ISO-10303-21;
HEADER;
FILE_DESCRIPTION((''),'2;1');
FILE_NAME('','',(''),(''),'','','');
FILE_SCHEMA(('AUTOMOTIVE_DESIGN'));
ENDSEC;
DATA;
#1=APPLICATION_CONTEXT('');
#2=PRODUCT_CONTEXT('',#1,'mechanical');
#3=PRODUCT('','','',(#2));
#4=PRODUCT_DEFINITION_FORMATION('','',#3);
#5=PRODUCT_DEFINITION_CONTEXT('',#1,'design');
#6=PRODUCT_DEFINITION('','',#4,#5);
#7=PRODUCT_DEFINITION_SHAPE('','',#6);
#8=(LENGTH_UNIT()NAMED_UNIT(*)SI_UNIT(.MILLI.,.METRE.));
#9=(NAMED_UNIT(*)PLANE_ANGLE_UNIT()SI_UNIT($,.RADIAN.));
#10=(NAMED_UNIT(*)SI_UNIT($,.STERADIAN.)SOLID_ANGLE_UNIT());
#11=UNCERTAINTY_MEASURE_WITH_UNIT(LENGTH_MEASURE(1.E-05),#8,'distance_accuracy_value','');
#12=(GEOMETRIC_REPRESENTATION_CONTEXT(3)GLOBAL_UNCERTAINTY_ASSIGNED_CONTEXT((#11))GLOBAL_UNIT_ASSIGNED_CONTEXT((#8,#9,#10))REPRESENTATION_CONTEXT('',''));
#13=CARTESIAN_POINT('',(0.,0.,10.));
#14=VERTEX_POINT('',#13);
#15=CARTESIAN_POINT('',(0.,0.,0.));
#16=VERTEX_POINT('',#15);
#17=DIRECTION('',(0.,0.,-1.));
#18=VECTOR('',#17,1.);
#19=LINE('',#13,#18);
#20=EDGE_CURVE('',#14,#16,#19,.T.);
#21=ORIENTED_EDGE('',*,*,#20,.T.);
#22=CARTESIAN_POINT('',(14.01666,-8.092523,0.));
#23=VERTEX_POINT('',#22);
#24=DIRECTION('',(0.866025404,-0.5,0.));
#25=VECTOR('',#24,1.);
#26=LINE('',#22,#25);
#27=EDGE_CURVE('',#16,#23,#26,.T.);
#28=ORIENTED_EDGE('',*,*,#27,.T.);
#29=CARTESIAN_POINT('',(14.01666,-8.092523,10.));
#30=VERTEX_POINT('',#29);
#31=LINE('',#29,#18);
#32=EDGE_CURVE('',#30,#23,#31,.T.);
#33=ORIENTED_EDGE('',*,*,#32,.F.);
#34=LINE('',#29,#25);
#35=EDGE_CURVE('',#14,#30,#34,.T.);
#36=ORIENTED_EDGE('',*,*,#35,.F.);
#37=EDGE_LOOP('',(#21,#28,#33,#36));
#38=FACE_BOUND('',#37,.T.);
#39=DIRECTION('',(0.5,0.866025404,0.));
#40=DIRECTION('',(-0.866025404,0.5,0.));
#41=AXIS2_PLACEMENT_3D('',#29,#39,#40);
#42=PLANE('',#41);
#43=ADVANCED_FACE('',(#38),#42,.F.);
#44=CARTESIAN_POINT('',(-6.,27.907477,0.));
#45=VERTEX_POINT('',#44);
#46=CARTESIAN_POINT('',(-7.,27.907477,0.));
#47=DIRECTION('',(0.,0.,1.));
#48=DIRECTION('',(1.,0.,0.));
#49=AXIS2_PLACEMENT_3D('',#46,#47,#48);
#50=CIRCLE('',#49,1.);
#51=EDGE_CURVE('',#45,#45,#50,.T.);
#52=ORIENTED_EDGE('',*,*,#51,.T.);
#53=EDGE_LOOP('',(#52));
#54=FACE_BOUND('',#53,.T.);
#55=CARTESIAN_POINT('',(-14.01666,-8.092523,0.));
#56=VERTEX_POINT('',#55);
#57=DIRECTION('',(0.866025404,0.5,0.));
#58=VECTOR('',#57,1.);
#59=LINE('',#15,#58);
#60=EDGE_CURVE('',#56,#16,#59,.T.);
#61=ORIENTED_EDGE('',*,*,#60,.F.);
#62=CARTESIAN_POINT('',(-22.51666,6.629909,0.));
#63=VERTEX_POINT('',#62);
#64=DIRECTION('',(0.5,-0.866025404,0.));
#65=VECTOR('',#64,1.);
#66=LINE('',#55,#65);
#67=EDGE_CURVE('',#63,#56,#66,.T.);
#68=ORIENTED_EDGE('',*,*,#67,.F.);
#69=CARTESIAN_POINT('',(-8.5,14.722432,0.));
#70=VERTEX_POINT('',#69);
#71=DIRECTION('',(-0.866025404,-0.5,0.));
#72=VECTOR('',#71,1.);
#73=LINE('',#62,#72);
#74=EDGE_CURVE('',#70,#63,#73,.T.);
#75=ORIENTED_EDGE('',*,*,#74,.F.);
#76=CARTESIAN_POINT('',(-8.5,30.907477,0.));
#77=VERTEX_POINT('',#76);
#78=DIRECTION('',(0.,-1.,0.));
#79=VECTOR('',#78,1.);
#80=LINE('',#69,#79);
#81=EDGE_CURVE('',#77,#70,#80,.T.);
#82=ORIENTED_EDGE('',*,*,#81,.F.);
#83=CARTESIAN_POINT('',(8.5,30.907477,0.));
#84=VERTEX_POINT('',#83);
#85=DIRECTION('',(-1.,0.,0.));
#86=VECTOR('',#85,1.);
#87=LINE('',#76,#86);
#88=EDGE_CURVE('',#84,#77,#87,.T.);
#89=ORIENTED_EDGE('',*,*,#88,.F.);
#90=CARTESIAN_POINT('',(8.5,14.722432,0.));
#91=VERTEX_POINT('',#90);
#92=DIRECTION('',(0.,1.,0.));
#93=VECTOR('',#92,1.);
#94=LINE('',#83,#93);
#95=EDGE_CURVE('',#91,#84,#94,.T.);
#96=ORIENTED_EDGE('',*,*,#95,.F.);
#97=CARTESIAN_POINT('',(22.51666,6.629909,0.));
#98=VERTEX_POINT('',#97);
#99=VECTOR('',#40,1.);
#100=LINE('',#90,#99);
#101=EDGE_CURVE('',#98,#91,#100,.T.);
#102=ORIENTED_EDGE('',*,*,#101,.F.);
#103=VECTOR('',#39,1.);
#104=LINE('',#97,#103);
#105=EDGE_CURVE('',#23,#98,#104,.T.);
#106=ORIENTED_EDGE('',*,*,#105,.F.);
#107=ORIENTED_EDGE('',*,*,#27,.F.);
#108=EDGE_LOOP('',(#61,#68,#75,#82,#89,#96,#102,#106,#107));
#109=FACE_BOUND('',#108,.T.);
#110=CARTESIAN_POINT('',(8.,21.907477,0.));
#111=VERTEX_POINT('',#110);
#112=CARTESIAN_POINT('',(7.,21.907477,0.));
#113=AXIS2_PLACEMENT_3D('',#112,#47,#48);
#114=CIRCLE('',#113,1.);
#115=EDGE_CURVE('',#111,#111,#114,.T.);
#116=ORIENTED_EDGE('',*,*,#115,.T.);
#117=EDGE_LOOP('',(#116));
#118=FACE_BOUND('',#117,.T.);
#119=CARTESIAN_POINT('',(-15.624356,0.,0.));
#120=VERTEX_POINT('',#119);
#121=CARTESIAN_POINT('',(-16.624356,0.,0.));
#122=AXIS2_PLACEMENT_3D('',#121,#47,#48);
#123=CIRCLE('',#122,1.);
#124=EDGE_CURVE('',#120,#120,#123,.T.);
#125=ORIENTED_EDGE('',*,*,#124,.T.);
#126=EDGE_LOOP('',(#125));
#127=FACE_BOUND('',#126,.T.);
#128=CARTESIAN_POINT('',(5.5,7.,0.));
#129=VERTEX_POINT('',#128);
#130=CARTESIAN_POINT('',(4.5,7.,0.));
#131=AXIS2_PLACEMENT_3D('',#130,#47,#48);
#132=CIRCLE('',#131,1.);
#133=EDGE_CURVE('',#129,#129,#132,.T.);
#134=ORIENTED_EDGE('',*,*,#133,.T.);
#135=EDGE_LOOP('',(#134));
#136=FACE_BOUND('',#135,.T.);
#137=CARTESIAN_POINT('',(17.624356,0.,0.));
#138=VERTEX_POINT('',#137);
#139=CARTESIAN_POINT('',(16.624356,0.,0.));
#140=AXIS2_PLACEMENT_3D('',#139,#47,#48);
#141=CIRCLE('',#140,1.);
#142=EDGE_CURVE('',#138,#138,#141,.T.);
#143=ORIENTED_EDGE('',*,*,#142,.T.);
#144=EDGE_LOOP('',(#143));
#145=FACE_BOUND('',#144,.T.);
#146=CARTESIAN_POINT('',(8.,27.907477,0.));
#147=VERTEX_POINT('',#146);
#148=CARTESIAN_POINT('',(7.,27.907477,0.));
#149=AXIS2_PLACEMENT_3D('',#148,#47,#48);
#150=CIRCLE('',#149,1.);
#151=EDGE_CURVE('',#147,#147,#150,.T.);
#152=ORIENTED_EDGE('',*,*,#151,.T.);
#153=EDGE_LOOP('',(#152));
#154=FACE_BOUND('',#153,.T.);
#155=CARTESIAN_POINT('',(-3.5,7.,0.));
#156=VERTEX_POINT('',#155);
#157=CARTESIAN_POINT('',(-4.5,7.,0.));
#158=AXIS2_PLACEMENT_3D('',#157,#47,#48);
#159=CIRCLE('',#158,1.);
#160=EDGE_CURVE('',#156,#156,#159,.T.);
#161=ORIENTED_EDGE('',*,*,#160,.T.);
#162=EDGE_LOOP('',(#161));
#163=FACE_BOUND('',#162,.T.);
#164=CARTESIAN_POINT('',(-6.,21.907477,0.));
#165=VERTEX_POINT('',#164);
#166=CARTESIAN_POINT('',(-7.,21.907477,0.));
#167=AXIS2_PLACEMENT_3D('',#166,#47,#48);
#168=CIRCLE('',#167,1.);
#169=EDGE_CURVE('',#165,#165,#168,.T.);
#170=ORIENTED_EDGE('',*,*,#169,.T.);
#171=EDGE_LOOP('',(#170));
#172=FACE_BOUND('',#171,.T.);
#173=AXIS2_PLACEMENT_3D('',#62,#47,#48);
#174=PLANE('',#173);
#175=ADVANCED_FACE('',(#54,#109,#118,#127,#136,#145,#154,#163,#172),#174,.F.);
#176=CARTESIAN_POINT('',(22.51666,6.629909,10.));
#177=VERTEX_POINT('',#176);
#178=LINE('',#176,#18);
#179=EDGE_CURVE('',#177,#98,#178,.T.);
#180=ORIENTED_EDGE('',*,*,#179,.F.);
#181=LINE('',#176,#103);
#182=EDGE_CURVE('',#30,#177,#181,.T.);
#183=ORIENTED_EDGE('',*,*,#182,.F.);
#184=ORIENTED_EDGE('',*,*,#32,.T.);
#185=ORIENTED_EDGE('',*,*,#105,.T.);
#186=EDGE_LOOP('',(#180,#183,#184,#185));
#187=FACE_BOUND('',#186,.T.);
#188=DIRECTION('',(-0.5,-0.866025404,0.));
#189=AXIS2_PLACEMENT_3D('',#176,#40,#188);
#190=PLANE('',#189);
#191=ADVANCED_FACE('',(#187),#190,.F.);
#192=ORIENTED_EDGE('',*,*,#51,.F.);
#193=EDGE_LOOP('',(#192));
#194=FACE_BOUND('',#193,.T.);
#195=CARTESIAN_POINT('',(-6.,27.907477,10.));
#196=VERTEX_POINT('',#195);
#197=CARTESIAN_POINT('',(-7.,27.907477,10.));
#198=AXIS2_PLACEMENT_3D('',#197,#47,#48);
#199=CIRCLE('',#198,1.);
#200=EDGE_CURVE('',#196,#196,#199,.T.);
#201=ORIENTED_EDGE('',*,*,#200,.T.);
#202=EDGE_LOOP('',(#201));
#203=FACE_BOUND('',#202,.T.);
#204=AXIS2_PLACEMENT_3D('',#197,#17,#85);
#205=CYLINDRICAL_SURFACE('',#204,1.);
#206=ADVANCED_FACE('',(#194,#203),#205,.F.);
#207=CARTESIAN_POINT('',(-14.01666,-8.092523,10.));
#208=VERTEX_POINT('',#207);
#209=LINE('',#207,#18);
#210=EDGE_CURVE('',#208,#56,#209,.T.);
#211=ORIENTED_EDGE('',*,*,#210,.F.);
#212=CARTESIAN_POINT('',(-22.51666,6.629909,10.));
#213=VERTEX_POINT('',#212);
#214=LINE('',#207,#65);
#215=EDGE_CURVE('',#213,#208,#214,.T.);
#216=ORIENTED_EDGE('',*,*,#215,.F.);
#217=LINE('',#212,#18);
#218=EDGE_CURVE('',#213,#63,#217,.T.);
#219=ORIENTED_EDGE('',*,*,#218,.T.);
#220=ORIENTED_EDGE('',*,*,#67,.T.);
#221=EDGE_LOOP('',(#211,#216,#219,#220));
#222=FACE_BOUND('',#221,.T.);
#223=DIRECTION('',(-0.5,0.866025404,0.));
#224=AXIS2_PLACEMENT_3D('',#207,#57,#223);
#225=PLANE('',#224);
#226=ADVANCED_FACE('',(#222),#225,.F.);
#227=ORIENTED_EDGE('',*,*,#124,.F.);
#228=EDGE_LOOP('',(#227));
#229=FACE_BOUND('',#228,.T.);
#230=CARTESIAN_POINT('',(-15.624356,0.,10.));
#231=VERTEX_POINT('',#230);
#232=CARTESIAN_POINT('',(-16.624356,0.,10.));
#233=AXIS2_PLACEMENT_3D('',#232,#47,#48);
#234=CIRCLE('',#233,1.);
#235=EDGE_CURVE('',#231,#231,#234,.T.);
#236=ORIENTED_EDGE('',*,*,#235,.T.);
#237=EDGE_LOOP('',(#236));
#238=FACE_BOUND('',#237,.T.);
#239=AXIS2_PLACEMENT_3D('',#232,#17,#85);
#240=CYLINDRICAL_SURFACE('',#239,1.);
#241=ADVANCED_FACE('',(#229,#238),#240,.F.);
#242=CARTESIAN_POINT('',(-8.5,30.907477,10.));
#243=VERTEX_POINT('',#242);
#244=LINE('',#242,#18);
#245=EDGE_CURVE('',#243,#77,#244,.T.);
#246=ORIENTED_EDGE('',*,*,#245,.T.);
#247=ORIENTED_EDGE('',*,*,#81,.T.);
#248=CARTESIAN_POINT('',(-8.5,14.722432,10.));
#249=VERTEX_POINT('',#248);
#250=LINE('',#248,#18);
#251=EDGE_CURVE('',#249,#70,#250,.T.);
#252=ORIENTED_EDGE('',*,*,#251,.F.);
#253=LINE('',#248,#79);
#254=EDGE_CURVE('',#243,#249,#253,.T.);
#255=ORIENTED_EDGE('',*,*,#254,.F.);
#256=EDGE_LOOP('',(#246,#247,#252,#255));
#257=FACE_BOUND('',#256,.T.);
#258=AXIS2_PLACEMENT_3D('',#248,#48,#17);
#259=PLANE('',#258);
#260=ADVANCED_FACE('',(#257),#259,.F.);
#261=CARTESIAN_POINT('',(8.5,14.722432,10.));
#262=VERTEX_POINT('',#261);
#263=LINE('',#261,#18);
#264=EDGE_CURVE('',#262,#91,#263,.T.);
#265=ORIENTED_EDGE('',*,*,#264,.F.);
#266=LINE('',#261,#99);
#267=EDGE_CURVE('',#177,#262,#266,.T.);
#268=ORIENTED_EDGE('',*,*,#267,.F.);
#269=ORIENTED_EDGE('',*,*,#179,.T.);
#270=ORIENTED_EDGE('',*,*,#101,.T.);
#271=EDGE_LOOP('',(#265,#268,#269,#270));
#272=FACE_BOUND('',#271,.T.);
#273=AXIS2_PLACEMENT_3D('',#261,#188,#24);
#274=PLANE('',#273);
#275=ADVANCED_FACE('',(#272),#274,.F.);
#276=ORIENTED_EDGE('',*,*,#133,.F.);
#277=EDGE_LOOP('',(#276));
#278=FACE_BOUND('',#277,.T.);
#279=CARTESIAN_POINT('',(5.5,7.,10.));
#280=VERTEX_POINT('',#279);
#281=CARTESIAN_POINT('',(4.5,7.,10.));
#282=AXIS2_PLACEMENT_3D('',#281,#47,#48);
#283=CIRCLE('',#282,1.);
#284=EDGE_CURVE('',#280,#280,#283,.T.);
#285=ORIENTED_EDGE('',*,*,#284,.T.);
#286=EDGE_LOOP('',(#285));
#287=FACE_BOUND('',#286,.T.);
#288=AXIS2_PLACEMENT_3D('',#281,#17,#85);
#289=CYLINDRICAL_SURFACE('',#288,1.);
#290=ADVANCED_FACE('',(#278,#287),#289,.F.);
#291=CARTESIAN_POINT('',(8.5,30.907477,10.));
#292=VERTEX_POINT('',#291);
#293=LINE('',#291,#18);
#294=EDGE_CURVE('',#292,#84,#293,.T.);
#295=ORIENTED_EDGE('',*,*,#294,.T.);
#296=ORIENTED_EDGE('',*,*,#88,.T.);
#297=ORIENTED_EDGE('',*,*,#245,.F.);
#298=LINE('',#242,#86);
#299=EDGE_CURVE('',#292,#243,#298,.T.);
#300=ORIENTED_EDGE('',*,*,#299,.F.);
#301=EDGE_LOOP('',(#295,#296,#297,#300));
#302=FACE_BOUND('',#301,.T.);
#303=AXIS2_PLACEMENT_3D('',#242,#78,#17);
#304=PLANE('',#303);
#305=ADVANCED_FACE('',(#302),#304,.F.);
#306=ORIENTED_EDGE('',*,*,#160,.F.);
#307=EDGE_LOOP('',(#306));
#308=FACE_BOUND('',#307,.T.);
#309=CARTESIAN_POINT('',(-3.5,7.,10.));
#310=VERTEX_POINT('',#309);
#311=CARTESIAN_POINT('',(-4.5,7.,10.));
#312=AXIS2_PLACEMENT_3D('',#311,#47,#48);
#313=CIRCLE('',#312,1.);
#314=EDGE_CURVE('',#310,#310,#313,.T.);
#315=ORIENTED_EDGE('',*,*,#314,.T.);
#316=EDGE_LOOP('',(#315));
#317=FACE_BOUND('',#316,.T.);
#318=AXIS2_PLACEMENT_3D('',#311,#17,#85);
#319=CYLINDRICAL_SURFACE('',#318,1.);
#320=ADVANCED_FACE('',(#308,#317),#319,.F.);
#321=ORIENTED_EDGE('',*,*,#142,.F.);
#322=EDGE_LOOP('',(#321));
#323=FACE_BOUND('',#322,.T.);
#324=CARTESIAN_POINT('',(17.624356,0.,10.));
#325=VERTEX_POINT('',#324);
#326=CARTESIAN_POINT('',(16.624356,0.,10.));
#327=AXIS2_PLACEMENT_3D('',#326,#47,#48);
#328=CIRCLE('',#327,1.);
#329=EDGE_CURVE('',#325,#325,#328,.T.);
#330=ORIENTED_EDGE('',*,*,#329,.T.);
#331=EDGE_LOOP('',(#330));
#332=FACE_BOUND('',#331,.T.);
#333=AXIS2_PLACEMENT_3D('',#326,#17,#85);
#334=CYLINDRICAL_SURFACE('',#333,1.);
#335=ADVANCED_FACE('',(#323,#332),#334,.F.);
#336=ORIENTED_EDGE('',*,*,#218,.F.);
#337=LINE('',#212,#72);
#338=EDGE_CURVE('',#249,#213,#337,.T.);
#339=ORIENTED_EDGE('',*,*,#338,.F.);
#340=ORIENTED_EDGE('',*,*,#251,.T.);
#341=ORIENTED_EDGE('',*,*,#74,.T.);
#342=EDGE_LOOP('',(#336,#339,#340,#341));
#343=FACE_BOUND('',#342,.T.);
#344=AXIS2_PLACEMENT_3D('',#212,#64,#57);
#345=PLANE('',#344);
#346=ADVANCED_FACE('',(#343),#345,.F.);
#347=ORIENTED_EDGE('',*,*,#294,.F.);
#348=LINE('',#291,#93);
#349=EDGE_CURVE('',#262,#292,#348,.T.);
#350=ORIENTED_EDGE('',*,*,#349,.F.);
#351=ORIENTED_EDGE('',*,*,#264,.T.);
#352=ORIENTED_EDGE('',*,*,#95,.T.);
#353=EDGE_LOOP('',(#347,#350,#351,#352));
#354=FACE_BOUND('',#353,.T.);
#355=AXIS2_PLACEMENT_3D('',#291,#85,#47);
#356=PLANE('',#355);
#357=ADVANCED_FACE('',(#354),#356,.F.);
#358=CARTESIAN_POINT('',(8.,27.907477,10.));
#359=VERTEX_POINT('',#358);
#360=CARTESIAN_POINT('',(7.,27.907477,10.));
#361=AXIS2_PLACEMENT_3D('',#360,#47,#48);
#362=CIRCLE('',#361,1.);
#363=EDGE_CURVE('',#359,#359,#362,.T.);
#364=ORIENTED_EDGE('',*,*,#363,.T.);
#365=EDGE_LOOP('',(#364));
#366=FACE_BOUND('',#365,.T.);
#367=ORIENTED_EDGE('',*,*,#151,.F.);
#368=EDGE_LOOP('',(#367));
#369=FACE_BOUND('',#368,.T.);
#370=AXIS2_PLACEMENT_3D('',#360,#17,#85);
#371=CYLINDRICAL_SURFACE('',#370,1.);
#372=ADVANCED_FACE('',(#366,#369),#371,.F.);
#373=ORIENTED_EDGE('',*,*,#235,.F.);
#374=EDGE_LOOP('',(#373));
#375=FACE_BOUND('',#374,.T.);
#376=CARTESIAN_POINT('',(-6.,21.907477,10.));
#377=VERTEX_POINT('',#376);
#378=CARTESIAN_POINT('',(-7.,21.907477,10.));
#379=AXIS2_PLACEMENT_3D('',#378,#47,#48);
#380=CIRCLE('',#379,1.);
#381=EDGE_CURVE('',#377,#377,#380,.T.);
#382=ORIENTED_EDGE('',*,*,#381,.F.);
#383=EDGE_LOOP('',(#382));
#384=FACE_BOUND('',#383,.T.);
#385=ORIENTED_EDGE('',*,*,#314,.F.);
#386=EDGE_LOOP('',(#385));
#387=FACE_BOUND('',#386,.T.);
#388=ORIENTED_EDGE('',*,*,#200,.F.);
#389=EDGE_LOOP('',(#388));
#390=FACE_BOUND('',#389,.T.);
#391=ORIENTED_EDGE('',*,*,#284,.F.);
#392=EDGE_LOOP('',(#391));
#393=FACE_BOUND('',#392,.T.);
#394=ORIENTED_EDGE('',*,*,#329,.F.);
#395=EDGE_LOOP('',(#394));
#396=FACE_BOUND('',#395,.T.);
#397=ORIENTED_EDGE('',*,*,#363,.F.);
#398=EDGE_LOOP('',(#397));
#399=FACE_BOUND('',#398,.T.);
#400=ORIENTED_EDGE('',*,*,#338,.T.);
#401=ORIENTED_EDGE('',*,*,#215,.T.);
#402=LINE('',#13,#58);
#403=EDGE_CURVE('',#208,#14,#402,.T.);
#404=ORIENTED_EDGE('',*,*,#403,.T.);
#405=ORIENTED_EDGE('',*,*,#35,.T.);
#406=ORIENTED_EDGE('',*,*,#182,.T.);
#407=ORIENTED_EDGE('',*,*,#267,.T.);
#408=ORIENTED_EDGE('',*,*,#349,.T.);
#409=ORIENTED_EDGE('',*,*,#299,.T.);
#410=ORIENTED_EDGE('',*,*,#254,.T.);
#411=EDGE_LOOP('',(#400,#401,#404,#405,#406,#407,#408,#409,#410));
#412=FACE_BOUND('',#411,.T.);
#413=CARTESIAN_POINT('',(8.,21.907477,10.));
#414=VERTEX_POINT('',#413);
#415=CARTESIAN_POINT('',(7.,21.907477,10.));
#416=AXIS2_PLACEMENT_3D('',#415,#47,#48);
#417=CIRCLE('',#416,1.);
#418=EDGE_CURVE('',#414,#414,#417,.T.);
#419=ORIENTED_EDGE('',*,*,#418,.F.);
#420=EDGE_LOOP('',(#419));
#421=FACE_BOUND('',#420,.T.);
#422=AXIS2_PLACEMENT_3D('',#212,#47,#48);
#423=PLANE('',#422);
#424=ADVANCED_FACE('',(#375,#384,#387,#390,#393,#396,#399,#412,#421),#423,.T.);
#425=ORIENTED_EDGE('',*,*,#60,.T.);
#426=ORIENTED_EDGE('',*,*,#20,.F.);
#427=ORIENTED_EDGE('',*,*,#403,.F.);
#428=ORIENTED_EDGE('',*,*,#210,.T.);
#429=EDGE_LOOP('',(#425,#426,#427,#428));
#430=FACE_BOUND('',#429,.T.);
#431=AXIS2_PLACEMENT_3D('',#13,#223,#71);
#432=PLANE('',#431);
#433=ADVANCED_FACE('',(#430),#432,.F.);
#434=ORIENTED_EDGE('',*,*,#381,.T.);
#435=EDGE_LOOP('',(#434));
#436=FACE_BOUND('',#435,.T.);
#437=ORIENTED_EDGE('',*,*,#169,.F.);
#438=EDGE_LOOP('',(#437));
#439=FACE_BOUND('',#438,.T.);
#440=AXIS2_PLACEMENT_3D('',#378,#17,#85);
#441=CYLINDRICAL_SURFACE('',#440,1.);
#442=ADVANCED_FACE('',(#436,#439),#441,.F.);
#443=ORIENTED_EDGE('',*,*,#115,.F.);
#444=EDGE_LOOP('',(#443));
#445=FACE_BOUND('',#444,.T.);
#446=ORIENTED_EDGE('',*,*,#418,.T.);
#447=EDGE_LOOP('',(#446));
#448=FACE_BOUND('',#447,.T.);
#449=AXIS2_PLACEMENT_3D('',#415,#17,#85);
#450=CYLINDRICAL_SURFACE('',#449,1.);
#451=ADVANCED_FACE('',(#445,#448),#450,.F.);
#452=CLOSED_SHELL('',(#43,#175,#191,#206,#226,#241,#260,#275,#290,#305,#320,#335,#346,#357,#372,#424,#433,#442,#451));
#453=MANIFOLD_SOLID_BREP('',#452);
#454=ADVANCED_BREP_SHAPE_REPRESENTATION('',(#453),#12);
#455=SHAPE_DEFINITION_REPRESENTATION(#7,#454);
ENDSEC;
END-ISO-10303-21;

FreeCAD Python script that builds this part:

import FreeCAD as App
import Part
import Sketcher
Q = App.Units.Quantity


def add_polygon(sketch, points):
    """Adds a closed chain of lines whose ends are joined by coincident constraints."""
    first, n = sketch.GeometryCount, len(points)
    for a, b in zip(points, points[1:] + points[:1]):
        sketch.addGeometry(Part.LineSegment(App.Vector(*a, 0), App.Vector(*b, 0)), False)
    for i in range(n):
        sketch.addConstraint(Sketcher.Constraint("Coincident", first + i, 2, first + (i + 1) % n, 1))

doc = App.newDocument("Part")
body = doc.addObject("PartDesign::Body", "Body")

sketch1 = body.newObject("Sketcher::SketchObject", "Sketch")
sketch1.AttachmentSupport = (doc.getObject("XY_Plane"), [""])
sketch1.MapMode = "FlatFace"
add_polygon(sketch1, [(-8.5, 30.9), (-8.5, 14.7), (-22.5, 6.6), (-14, -8.1), (0, 0), (14, -8.1), (22.5, 6.6), (8.5, 14.7), (8.5, 30.9)])
sketch1.addGeometry(Part.Circle(App.Vector(16.6, 0, 0), App.Vector(0, 0, 1), 1), False)
sketch1.addGeometry(Part.Circle(App.Vector(4.5, 7, 0), App.Vector(0, 0, 1), 1), False)
sketch1.addGeometry(Part.Circle(App.Vector(-16.6, 0, 0), App.Vector(0, 0, 1), 1), False)
sketch1.addGeometry(Part.Circle(App.Vector(-4.5, 7, 0), App.Vector(0, 0, 1), 1), False)
sketch1.addGeometry(Part.Circle(App.Vector(7, 21.9, 0), App.Vector(0, 0, 1), 1), False)
sketch1.addGeometry(Part.Circle(App.Vector(7, 27.9, 0), App.Vector(0, 0, 1), 1), False)
sketch1.addGeometry(Part.Circle(App.Vector(-7, 21.9, 0), App.Vector(0, 0, 1), 1), False)
sketch1.addGeometry(Part.Circle(App.Vector(-7, 27.9, 0), App.Vector(0, 0, 1), 1), False)
sketch1.addConstraint([
    Sketcher.Constraint("Vertical", 0),
    Sketcher.Constraint("Vertical", 7),
    Sketcher.Constraint("Horizontal", 8),
    Sketcher.Constraint("Coincident", 3, 2, -1, 1),
    Sketcher.Constraint("Equal", 9, 10),
    Sketcher.Constraint("Equal", 10, 11),
    Sketcher.Constraint("Equal", 11, 12),
    Sketcher.Constraint("Equal", 12, 13),
    Sketcher.Constraint("Equal", 13, 14),
    Sketcher.Constraint("Equal", 14, 15),
    Sketcher.Constraint("Equal", 15, 16),
    Sketcher.Constraint("Symmetric", 9, 3, 11, 3, -1, 1),
    Sketcher.Constraint("Symmetric", 10, 3, 12, 3, -2),
    Sketcher.Constraint("Symmetric", 13, 3, 15, 3, -2),
    Sketcher.Constraint("Symmetric", 14, 3, 16, 3, -2),
    Sketcher.Constraint("Symmetric", 2, 2, 4, 2, -2),
    Sketcher.Constraint("Symmetric", 1, 2, 5, 2, -2),
    Sketcher.Constraint("Symmetric", 0, 2, 6, 2, -2),
    Sketcher.Constraint("PointOnObject", 9, 3, -1),
    Sketcher.Constraint("Perpendicular", 1, 2),
    Sketcher.Constraint("Perpendicular", 2, 3),
    Sketcher.Constraint("Vertical", 13, 3, 14, 3),
    Sketcher.Constraint("Equal", 1, 3),
    Sketcher.Constraint("Diameter", 9, 2.0),
    Sketcher.Constraint("DistanceX", 8, 2, 8, 1, 17.0),
    Sketcher.Constraint("Angle", 1, Q("-150 deg")),
    Sketcher.Constraint("DistanceY", -1, 1, 10, 3, 7.0),
    Sketcher.Constraint("DistanceX", -1, 1, 13, 3, 7.0),
    Sketcher.Constraint("DistanceX", 12, 3, 10, 3, 9.0),
    Sketcher.Constraint("DistanceY", 13, 3, 14, 3, 6.0),
    Sketcher.Constraint("DistanceY", 14, 3, 7, 2, 3.0),
    Sketcher.Constraint("DistanceY", 0, 2, 0, 1, 16.185045),
    Sketcher.Constraint("DistanceX", 1, 2, -1, 1, 22.51666),
    Sketcher.Constraint("DistanceX", 11, 3, 9, 3, 33.248711),
])
pad1 = body.newObject("PartDesign::Pad", "Pad")
pad1.Profile = sketch1
pad1.Length = 10

doc.recompute()
